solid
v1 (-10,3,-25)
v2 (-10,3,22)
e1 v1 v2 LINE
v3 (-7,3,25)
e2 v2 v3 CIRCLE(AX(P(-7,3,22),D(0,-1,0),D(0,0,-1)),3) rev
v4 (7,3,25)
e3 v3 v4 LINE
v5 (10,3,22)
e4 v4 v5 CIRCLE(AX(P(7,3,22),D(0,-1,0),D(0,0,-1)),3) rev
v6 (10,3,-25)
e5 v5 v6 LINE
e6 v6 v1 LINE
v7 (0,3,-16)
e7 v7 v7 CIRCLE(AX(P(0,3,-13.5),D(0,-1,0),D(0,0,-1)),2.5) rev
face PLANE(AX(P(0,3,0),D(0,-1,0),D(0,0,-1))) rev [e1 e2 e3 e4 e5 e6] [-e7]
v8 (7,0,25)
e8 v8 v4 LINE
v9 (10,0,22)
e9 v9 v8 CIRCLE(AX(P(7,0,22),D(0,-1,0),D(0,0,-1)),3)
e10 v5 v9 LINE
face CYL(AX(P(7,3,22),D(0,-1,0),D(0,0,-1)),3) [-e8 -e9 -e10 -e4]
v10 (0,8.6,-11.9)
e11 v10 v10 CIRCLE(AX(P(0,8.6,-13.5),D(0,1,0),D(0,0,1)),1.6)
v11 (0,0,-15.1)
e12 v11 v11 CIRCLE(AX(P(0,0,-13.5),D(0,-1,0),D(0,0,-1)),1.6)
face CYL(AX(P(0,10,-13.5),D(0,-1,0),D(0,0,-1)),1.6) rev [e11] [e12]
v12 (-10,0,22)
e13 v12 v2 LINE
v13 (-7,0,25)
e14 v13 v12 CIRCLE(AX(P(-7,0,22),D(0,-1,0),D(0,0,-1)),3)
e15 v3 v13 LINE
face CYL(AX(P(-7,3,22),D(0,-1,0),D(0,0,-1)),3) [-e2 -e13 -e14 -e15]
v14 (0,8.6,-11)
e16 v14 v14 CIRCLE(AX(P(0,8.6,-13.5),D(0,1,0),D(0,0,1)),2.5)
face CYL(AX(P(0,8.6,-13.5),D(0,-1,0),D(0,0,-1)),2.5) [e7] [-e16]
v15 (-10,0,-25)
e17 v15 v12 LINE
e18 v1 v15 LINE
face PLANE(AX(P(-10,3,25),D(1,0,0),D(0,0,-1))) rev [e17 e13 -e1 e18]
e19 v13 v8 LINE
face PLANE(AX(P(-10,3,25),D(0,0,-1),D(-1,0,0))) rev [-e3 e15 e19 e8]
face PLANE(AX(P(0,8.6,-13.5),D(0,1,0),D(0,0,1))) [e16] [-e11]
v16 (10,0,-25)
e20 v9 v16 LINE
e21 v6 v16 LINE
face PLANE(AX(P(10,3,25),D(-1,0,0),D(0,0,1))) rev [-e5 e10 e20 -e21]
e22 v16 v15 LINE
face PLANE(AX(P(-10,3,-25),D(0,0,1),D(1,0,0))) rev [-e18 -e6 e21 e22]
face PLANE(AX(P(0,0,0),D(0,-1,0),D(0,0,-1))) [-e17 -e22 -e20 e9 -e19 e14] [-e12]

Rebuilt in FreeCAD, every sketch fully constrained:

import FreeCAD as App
import Part
import Sketcher

V = App.Vector
Q = App.Units.Quantity


def edges_at(feature, points):
    """Names of the edges that pass closest to the given points."""
    edges = feature.Shape.Edges
    near = lambda p: min(range(len(edges)), key=lambda i: edges[i].distToShape(Part.Vertex(*p))[0])
    return sorted({f"Edge{near(p) + 1}" for p in points})

doc = App.newDocument("Part")
body = doc.addObject("PartDesign::Body", "Body")

# Sketch on XZ plane
sketch1 = body.newObject("Sketcher::SketchObject", "Sketch")
sketch1.AttachmentSupport = (doc.getObject("XZ_Plane"), [""])
sketch1.MapMode = "FlatFace"
sketch1.addGeometry([
    Part.LineSegment(V(-10, -25, 0), V(-10, 25, 0)),
    Part.LineSegment(V(-10, 25, 0), V(10, 25, 0)),
    Part.LineSegment(V(10, 25, 0), V(10, -25, 0)),
    Part.LineSegment(V(10, -25, 0), V(-10, -25, 0)),
], False)
sketch1.addConstraint([
    Sketcher.Constraint("Coincident", 0, 2, 1, 1),
    Sketcher.Constraint("Coincident", 1, 2, 2, 1),
    Sketcher.Constraint("Coincident", 2, 2, 3, 1),
    Sketcher.Constraint("Coincident", 3, 2, 0, 1),
    Sketcher.Constraint("Vertical", 0),
    Sketcher.Constraint("Horizontal", 1),
    Sketcher.Constraint("Vertical", 2),
    Sketcher.Constraint("Horizontal", 3),
    Sketcher.Constraint("Symmetric", 0, 2, 2, 2, -1, 1),
    Sketcher.Constraint("DistanceX", 1, 1, 1, 2, Q("20 mm")),
    Sketcher.Constraint("DistanceY", 0, 1, 0, 2, Q("50 mm")),
])
pad1 = body.newObject("PartDesign::Pad", "Pad")
pad1.Profile = sketch1
pad1.Length = 3
pad1.Reversed = True

# Sketch on XZ plane
sketch2 = body.newObject("Sketcher::SketchObject", "Sketch001")
sketch2.AttachmentSupport = (doc.getObject("XZ_Plane"), [""])
sketch2.MapMode = "FlatFace"
sketch2.addGeometry(Part.Circle(V(0, -13.5, 0), V(0, 0, 1), 1.6), False)
sketch2.addConstraint([
    Sketcher.Constraint("PointOnObject", 0, 3, -2),
    Sketcher.Constraint("Diameter", 0, Q("3.2 mm")),
    Sketcher.Constraint("DistanceY", 0, 3, -1, 1, Q("13.5 mm")),
])
pocket1 = body.newObject("PartDesign::Pocket", "Pocket")
pocket1.Profile = sketch2
pocket1.Length = 10

# Sketch on XZ plane
sketch3 = body.newObject("Sketcher::SketchObject", "Sketch002")
sketch3.AttachmentSupport = (doc.getObject("XZ_Plane"), [""])
sketch3.MapMode = "FlatFace"
sketch3.AttachmentOffset = App.Placement(V(0, 0, -3), App.Rotation())
sketch3.addGeometry([
    Part.Circle(V(0, -13.5, 0), V(0, 0, 1), 2.5),
    Part.Circle(V(0, -13.5, 0), V(0, 0, 1), 1.6),
], False)
sketch3.addConstraint([
    Sketcher.Constraint("Coincident", 1, 3, 0, 3),
    Sketcher.Constraint("PointOnObject", 0, 3, -2),
    Sketcher.Constraint("Diameter", 0, Q("5 mm")),
    Sketcher.Constraint("Diameter", 1, Q("3.2 mm")),
    Sketcher.Constraint("DistanceY", 0, 3, -1, 1, Q("13.5 mm")),
])
pad2 = body.newObject("PartDesign::Pad", "Pad001")
pad2.Profile = sketch3
pad2.Length = 5.6
pad2.Reversed = True
doc.recompute()

fillet = body.newObject("PartDesign::Fillet", "Fillet")
fillet.Base = (pad2, edges_at(pad2, [(10, 1.5, 25), (-10, 1.5, 25)]))
fillet.Radius = 3

doc.recompute()
